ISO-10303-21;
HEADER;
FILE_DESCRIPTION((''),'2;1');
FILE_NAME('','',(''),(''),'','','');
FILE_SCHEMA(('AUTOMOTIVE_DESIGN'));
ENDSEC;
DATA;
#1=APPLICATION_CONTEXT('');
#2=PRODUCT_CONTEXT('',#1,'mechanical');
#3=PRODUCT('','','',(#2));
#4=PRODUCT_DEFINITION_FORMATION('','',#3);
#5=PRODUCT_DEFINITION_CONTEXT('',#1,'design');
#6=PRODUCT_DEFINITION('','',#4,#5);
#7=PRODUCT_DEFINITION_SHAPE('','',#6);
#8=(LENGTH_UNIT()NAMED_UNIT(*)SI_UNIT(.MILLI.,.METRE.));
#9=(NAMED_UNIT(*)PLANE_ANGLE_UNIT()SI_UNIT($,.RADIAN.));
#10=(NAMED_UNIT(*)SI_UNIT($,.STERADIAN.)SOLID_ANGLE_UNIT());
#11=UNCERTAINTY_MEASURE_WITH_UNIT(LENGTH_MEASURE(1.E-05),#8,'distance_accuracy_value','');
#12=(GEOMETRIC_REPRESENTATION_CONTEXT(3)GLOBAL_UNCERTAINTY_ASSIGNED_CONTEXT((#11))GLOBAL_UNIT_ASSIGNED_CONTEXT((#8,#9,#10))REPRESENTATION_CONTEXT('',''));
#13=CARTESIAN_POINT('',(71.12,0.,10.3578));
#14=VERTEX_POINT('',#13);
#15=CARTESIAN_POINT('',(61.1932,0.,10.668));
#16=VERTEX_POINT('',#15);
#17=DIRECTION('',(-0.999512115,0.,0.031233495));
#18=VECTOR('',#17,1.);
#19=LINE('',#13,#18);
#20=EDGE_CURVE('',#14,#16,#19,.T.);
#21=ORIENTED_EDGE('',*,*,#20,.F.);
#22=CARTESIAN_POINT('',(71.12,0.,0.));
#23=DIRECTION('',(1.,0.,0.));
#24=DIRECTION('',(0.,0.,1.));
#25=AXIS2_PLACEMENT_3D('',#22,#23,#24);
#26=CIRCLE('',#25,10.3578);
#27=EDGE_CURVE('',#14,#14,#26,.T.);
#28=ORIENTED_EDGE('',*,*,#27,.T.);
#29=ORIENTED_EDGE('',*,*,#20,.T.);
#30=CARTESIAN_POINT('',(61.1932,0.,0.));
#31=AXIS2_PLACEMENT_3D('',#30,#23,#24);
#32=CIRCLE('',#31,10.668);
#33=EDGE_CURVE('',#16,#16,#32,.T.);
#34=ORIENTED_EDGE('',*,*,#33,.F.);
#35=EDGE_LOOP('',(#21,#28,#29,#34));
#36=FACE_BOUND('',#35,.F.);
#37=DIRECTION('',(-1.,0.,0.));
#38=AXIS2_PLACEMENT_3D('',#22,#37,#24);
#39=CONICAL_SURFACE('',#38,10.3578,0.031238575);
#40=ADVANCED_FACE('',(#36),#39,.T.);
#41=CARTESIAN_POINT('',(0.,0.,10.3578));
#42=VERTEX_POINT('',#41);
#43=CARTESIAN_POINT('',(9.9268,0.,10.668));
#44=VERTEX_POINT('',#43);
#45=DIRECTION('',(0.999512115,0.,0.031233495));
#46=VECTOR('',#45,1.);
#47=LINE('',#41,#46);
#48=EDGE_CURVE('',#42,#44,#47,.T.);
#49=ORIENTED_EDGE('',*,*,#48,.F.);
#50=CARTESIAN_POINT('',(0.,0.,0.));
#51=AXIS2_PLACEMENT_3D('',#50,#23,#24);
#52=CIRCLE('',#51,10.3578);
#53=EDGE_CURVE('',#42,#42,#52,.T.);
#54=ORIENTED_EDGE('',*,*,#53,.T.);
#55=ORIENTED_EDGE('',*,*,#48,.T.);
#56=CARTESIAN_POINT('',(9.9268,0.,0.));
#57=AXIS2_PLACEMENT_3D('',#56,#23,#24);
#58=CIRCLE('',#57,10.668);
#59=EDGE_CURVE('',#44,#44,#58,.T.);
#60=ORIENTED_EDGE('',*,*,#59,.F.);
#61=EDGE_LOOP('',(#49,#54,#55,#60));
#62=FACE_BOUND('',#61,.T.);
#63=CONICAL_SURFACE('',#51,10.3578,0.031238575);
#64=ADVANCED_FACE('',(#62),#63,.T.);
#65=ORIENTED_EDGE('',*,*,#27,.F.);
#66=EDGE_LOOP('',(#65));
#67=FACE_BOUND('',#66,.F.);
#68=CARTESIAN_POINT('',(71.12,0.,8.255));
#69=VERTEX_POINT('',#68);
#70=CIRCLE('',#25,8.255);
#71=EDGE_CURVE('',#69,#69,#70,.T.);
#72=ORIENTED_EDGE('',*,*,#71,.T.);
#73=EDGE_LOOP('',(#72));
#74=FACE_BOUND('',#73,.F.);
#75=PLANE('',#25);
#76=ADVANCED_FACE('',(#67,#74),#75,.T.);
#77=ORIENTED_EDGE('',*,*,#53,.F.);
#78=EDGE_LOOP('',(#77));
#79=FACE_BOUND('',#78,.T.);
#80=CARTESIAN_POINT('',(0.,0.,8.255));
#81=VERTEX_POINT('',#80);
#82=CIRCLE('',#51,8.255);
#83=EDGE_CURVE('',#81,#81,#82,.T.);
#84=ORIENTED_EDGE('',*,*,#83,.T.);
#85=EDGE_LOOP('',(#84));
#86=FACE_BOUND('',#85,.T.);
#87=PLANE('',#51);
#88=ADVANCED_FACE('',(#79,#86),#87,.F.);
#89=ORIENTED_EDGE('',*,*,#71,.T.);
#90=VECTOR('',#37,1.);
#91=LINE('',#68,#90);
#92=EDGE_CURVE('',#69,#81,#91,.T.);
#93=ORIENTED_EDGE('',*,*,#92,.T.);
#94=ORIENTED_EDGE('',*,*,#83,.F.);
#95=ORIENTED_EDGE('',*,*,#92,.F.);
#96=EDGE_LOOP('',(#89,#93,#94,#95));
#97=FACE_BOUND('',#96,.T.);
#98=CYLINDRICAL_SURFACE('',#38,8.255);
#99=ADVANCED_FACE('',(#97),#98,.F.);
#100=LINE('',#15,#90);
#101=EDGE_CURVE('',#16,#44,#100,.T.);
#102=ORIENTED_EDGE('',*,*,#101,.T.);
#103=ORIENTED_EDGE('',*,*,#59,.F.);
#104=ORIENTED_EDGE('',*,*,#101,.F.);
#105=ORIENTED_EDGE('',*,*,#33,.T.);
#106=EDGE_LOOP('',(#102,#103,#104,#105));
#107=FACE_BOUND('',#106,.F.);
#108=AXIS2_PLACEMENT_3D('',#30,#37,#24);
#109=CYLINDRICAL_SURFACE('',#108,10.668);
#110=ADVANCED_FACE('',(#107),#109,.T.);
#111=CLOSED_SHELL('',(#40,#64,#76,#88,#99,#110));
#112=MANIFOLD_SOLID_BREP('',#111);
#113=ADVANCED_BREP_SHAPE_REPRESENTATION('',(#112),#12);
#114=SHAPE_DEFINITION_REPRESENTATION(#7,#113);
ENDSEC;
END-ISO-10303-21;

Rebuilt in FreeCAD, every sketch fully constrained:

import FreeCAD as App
import Part
import Sketcher
from FreeCAD import Vector
Q = App.Units.Quantity


def add_polygon(sketch, points):
    """Adds a closed chain of lines whose ends are joined by coincident constraints."""
    first, n = sketch.GeometryCount, len(points)
    for a, b in zip(points, points[1:] + points[:1]):
        sketch.addGeometry(Part.LineSegment(App.Vector(*a, 0), App.Vector(*b, 0)), False)
    for i in range(n):
        sketch.addConstraint(Sketcher.Constraint("Coincident", first + i, 2, first + (i + 1) % n, 1))

doc = App.newDocument("Part")
body = doc.addObject("PartDesign::Body", "Body")

# Sketch on XZ plane
sketch1 = body.newObject("Sketcher::SketchObject", "Sketch")
sketch1.AttachmentSupport = (doc.getObject("XZ_Plane"), [""])
sketch1.MapMode = "FlatFace"
add_polygon(sketch1, [(71.12, 10.3578), (71.12, 8.255), (0, 8.255), (0, 10.3578), (9.9268, 10.668), (61.1932, 10.668)])  # lines 0-5
sketch1.addConstraint([
    Sketcher.Constraint("Vertical", 0),
    Sketcher.Constraint("Horizontal", 1),
    Sketcher.Constraint("Vertical", 2),
    Sketcher.Constraint("Horizontal", 4),
    Sketcher.Constraint("PointOnObject", 1, 2, -2),
    Sketcher.Constraint("Horizontal", 2, 2, 5, 2),
    Sketcher.Constraint("Equal", 3, 5),
    Sketcher.Constraint("DistanceX", 1, 2, 1, 1, Q("2.8 in")),
    Sketcher.Constraint("Angle", 3, Q("1.7898 deg")),
    Sketcher.Constraint("DistanceY", -1, 1, 3, 2, Q("0.42 in")),
    Sketcher.Constraint("Distance", 3, Q("0.391 in")),
    Sketcher.Constraint("DistanceY", -1, 1, 0, 2, Q("0.325 in")),
])
revolution = body.newObject("PartDesign::Revolution", "Revolution")
revolution.Profile = sketch1
revolution.ReferenceAxis = (sketch1, ["H_Axis"])
revolution.Angle = 360

doc.recompute()
